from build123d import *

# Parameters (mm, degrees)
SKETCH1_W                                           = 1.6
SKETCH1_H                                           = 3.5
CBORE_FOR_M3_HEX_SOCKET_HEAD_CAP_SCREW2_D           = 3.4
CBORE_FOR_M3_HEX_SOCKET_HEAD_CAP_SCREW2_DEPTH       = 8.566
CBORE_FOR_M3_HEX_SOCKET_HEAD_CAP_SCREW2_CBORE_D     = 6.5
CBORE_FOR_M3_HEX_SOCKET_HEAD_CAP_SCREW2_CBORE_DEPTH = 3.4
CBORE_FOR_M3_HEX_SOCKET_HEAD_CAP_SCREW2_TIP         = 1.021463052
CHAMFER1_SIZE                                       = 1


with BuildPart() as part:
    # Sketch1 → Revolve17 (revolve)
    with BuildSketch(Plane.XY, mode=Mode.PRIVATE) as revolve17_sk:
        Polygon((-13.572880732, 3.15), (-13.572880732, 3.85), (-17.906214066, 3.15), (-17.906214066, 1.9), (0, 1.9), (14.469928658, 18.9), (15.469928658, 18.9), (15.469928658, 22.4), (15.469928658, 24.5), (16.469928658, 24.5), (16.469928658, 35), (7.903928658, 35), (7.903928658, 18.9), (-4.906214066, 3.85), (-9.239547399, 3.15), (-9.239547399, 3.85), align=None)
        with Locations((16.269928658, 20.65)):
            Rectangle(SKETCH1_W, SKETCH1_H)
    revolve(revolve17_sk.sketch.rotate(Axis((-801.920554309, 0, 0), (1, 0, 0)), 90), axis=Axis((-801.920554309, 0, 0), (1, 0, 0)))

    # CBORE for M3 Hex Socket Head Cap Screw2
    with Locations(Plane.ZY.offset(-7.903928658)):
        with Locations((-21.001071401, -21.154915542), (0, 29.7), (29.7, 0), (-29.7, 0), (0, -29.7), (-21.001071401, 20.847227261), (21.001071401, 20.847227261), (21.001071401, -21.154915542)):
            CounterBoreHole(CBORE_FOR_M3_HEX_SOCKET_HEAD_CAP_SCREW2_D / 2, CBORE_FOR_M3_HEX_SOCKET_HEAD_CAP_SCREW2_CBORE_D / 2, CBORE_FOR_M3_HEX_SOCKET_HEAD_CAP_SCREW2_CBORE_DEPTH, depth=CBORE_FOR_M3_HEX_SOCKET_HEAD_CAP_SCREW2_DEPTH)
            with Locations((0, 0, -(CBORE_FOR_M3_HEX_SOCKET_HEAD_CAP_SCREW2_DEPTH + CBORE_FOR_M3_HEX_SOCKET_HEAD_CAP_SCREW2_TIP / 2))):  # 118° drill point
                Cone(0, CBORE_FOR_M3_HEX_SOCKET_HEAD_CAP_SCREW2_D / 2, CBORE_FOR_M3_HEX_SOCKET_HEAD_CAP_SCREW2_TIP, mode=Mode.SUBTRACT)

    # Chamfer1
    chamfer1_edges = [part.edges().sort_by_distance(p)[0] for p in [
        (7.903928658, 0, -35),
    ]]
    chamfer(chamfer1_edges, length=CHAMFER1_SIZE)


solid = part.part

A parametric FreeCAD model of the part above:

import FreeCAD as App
import Part
import Sketcher

V = App.Vector


def edges_at(feature, points):
    """Names of the edges that pass closest to the given points."""
    edges = feature.Shape.Edges
    near = lambda p: min(range(len(edges)), key=lambda i: edges[i].distToShape(Part.Vertex(*p))[0])
    return sorted({f"Edge{near(p) + 1}" for p in points})


def add_polygon(sketch, points):
    """Adds a closed chain of lines whose ends are joined by coincident constraints."""
    first, n = sketch.GeometryCount, len(points)
    for a, b in zip(points, points[1:] + points[:1]):
        sketch.addGeometry(Part.LineSegment(App.Vector(*a, 0), App.Vector(*b, 0)), False)
    for i in range(n):
        sketch.addConstraint(Sketcher.Constraint("Coincident", first + i, 2, first + (i + 1) % n, 1))

doc = App.newDocument("Part")
body = doc.addObject("PartDesign::Body", "Body")

# Sketch on XY plane
sketch1 = body.newObject("Sketcher::SketchObject", "Sketch")
sketch1.AttachmentSupport = (doc.getObject("XY_Plane"), [""])
sketch1.MapMode = "FlatFace"
add_polygon(sketch1, [(-13.6, 3.1), (-13.6, 3.9), (-17.9, 3.1), (-17.9, 1.9), (0, 1.9), (14.5, 18.9), (17.1, 18.9), (17.1, 22.4), (15.5, 22.4), (15.5, 24.5), (16.5, 24.5), (16.5, 35), (7.9, 35), (7.9, 18.9), (-4.9, 3.9), (-9.2, 3.1), (-9.2, 3.9)])  # lines 0-16
sketch1.addConstraint([
    Sketcher.Constraint("Vertical", 0),
    Sketcher.Constraint("Vertical", 2),
    Sketcher.Constraint("Horizontal", 3),
    Sketcher.Constraint("Horizontal", 5),
    Sketcher.Constraint("Vertical", 6),
    Sketcher.Constraint("Horizontal", 7),
    Sketcher.Constraint("Vertical", 8),
    Sketcher.Constraint("Horizontal", 9),
    Sketcher.Constraint("Vertical", 10),
    Sketcher.Constraint("Horizontal", 11),
    Sketcher.Constraint("Vertical", 12),
    Sketcher.Constraint("Vertical", 15),
    Sketcher.Constraint("PointOnObject", 3, 2, -2),
    Sketcher.Constraint("Parallel", 4, 13),
    Sketcher.Constraint("Parallel", 1, 14),
    Sketcher.Constraint("Parallel", 14, 16),
    Sketcher.Constraint("Horizontal", 5, 2, 12, 2),
    Sketcher.Constraint("Horizontal", 0, 2, 13, 2),
    Sketcher.Constraint("Horizontal", 1, 2, 14, 2),
    Sketcher.Constraint("Horizontal", 13, 2, 15, 2),
    Sketcher.Constraint("Horizontal", 14, 2, 16, 2),
    Sketcher.Constraint("DistanceX", 9, 1, 9, 2, 1.0),
    Sketcher.Constraint("DistanceX", 5, 1, 5, 2, 2.6),
    Sketcher.Constraint("DistanceX", 7, 2, 7, 1, 1.6),
    Sketcher.Constraint("DistanceY", 0, 1, 0, 2, 0.7),
    Sketcher.Constraint("DistanceY", 6, 1, 6, 2, 3.5),
    Sketcher.Constraint("DistanceY", 8, 1, 8, 2, 2.1),
    Sketcher.Constraint("DistanceY", 10, 1, 10, 2, 10.5),
    Sketcher.Constraint("DistanceY", -1, 1, 10, 2, 35.0),
    Sketcher.Constraint("DistanceY", 3, 2, 4, 2, 17.0),
    Sketcher.Constraint("DistanceX", 1, 2, 13, 2, 13.0),
    Sketcher.Constraint("DistanceY", 2, 2, 2, 1, 1.25),
    Sketcher.Constraint("DistanceX", 11, 2, 11, 1, 8.566),
    Sketcher.Constraint("Distance", 4, 22.3244),
])
revolution = body.newObject("PartDesign::Revolution", "Revolution")
revolution.Profile = sketch1
revolution.ReferenceAxis = (sketch1, ["H_Axis"])
revolution.Angle = 360

# Sketch on YZ plane
sketch2 = body.newObject("Sketcher::SketchObject", "Sketch001")
sketch2.AttachmentSupport = (doc.getObject("YZ_Plane"), [""])
sketch2.MapMode = "FlatFace"
sketch2.AttachmentOffset = App.Placement(V(0, 0, 7.903929), App.Rotation())
sketch2.addGeometry([
    Part.Circle(V(-21.2, -21, 0), V(0, 0, 1), 1.7),  # 0
    Part.Circle(V(29.7, 0, 0), V(0, 0, 1), 1.7),  # 1
    Part.Circle(V(0, 29.7, 0), V(0, 0, 1), 1.7),  # 2
    Part.Circle(V(0, -29.7, 0), V(0, 0, 1), 1.7),  # 3
    Part.Circle(V(-29.7, 0, 0), V(0, 0, 1), 1.7),  # 4
    Part.Circle(V(20.8, -21, 0), V(0, 0, 1), 1.7),  # 5
    Part.Circle(V(20.8, 21, 0), V(0, 0, 1), 1.7),  # 6
    Part.Circle(V(-21.2, 21, 0), V(0, 0, 1), 1.7),  # 7
], False)
sketch2.addConstraint([
    Sketcher.Constraint("Equal", 0, 1),
    Sketcher.Constraint("Equal", 1, 2),
    Sketcher.Constraint("Equal", 2, 3),
    Sketcher.Constraint("Equal", 3, 4),
    Sketcher.Constraint("Equal", 4, 5),
    Sketcher.Constraint("Equal", 5, 6),
    Sketcher.Constraint("Equal", 6, 7),
    Sketcher.Constraint("Symmetric", 2, 3, 3, 3, -1, 1),
    Sketcher.Constraint("Symmetric", 1, 3, 4, 3, -1, 1),
    Sketcher.Constraint("Symmetric", 5, 3, 6, 3, -1),
    Sketcher.Constraint("Symmetric", 0, 3, 7, 3, -1),
    Sketcher.Constraint("PointOnObject", 1, 3, -1),
    Sketcher.Constraint("PointOnObject", 2, 3, -2),
    Sketcher.Constraint("Horizontal", 0, 3, 5, 3),
    Sketcher.Constraint("Diameter", 0, 3.4),
    Sketcher.Constraint("DistanceX", -1, 1, 1, 3, 29.7),
    Sketcher.Constraint("DistanceY", -1, 1, 2, 3, 29.7),
    Sketcher.Constraint("DistanceY", 0, 3, -1, 1, 21.001071),
    Sketcher.Constraint("DistanceX", 0, 3, -1, 1, 21.154916),
    Sketcher.Constraint("DistanceX", -1, 1, 5, 3, 20.847227),
])
doc.recompute()
hole = body.newObject("PartDesign::Hole", "Hole")
hole.Profile = sketch2
hole.ThreadType = "None"
hole.Diameter = 3.4
hole.DepthType = "Dimension"
hole.Depth = 8.566
hole.DrillPoint = "Angled"
hole.DrillPointAngle = 118
hole.HoleCutType = "Counterbore"
hole.HoleCutDiameter = 6.5
hole.HoleCutDepth = 3.4
hole.Reversed = True
doc.recompute()

chamfer = body.newObject("PartDesign::Chamfer", "Chamfer")
chamfer.Base = (hole, edges_at(hole, [(7.904, 0, -35)]))
chamfer.Size = 1

doc.recompute()
